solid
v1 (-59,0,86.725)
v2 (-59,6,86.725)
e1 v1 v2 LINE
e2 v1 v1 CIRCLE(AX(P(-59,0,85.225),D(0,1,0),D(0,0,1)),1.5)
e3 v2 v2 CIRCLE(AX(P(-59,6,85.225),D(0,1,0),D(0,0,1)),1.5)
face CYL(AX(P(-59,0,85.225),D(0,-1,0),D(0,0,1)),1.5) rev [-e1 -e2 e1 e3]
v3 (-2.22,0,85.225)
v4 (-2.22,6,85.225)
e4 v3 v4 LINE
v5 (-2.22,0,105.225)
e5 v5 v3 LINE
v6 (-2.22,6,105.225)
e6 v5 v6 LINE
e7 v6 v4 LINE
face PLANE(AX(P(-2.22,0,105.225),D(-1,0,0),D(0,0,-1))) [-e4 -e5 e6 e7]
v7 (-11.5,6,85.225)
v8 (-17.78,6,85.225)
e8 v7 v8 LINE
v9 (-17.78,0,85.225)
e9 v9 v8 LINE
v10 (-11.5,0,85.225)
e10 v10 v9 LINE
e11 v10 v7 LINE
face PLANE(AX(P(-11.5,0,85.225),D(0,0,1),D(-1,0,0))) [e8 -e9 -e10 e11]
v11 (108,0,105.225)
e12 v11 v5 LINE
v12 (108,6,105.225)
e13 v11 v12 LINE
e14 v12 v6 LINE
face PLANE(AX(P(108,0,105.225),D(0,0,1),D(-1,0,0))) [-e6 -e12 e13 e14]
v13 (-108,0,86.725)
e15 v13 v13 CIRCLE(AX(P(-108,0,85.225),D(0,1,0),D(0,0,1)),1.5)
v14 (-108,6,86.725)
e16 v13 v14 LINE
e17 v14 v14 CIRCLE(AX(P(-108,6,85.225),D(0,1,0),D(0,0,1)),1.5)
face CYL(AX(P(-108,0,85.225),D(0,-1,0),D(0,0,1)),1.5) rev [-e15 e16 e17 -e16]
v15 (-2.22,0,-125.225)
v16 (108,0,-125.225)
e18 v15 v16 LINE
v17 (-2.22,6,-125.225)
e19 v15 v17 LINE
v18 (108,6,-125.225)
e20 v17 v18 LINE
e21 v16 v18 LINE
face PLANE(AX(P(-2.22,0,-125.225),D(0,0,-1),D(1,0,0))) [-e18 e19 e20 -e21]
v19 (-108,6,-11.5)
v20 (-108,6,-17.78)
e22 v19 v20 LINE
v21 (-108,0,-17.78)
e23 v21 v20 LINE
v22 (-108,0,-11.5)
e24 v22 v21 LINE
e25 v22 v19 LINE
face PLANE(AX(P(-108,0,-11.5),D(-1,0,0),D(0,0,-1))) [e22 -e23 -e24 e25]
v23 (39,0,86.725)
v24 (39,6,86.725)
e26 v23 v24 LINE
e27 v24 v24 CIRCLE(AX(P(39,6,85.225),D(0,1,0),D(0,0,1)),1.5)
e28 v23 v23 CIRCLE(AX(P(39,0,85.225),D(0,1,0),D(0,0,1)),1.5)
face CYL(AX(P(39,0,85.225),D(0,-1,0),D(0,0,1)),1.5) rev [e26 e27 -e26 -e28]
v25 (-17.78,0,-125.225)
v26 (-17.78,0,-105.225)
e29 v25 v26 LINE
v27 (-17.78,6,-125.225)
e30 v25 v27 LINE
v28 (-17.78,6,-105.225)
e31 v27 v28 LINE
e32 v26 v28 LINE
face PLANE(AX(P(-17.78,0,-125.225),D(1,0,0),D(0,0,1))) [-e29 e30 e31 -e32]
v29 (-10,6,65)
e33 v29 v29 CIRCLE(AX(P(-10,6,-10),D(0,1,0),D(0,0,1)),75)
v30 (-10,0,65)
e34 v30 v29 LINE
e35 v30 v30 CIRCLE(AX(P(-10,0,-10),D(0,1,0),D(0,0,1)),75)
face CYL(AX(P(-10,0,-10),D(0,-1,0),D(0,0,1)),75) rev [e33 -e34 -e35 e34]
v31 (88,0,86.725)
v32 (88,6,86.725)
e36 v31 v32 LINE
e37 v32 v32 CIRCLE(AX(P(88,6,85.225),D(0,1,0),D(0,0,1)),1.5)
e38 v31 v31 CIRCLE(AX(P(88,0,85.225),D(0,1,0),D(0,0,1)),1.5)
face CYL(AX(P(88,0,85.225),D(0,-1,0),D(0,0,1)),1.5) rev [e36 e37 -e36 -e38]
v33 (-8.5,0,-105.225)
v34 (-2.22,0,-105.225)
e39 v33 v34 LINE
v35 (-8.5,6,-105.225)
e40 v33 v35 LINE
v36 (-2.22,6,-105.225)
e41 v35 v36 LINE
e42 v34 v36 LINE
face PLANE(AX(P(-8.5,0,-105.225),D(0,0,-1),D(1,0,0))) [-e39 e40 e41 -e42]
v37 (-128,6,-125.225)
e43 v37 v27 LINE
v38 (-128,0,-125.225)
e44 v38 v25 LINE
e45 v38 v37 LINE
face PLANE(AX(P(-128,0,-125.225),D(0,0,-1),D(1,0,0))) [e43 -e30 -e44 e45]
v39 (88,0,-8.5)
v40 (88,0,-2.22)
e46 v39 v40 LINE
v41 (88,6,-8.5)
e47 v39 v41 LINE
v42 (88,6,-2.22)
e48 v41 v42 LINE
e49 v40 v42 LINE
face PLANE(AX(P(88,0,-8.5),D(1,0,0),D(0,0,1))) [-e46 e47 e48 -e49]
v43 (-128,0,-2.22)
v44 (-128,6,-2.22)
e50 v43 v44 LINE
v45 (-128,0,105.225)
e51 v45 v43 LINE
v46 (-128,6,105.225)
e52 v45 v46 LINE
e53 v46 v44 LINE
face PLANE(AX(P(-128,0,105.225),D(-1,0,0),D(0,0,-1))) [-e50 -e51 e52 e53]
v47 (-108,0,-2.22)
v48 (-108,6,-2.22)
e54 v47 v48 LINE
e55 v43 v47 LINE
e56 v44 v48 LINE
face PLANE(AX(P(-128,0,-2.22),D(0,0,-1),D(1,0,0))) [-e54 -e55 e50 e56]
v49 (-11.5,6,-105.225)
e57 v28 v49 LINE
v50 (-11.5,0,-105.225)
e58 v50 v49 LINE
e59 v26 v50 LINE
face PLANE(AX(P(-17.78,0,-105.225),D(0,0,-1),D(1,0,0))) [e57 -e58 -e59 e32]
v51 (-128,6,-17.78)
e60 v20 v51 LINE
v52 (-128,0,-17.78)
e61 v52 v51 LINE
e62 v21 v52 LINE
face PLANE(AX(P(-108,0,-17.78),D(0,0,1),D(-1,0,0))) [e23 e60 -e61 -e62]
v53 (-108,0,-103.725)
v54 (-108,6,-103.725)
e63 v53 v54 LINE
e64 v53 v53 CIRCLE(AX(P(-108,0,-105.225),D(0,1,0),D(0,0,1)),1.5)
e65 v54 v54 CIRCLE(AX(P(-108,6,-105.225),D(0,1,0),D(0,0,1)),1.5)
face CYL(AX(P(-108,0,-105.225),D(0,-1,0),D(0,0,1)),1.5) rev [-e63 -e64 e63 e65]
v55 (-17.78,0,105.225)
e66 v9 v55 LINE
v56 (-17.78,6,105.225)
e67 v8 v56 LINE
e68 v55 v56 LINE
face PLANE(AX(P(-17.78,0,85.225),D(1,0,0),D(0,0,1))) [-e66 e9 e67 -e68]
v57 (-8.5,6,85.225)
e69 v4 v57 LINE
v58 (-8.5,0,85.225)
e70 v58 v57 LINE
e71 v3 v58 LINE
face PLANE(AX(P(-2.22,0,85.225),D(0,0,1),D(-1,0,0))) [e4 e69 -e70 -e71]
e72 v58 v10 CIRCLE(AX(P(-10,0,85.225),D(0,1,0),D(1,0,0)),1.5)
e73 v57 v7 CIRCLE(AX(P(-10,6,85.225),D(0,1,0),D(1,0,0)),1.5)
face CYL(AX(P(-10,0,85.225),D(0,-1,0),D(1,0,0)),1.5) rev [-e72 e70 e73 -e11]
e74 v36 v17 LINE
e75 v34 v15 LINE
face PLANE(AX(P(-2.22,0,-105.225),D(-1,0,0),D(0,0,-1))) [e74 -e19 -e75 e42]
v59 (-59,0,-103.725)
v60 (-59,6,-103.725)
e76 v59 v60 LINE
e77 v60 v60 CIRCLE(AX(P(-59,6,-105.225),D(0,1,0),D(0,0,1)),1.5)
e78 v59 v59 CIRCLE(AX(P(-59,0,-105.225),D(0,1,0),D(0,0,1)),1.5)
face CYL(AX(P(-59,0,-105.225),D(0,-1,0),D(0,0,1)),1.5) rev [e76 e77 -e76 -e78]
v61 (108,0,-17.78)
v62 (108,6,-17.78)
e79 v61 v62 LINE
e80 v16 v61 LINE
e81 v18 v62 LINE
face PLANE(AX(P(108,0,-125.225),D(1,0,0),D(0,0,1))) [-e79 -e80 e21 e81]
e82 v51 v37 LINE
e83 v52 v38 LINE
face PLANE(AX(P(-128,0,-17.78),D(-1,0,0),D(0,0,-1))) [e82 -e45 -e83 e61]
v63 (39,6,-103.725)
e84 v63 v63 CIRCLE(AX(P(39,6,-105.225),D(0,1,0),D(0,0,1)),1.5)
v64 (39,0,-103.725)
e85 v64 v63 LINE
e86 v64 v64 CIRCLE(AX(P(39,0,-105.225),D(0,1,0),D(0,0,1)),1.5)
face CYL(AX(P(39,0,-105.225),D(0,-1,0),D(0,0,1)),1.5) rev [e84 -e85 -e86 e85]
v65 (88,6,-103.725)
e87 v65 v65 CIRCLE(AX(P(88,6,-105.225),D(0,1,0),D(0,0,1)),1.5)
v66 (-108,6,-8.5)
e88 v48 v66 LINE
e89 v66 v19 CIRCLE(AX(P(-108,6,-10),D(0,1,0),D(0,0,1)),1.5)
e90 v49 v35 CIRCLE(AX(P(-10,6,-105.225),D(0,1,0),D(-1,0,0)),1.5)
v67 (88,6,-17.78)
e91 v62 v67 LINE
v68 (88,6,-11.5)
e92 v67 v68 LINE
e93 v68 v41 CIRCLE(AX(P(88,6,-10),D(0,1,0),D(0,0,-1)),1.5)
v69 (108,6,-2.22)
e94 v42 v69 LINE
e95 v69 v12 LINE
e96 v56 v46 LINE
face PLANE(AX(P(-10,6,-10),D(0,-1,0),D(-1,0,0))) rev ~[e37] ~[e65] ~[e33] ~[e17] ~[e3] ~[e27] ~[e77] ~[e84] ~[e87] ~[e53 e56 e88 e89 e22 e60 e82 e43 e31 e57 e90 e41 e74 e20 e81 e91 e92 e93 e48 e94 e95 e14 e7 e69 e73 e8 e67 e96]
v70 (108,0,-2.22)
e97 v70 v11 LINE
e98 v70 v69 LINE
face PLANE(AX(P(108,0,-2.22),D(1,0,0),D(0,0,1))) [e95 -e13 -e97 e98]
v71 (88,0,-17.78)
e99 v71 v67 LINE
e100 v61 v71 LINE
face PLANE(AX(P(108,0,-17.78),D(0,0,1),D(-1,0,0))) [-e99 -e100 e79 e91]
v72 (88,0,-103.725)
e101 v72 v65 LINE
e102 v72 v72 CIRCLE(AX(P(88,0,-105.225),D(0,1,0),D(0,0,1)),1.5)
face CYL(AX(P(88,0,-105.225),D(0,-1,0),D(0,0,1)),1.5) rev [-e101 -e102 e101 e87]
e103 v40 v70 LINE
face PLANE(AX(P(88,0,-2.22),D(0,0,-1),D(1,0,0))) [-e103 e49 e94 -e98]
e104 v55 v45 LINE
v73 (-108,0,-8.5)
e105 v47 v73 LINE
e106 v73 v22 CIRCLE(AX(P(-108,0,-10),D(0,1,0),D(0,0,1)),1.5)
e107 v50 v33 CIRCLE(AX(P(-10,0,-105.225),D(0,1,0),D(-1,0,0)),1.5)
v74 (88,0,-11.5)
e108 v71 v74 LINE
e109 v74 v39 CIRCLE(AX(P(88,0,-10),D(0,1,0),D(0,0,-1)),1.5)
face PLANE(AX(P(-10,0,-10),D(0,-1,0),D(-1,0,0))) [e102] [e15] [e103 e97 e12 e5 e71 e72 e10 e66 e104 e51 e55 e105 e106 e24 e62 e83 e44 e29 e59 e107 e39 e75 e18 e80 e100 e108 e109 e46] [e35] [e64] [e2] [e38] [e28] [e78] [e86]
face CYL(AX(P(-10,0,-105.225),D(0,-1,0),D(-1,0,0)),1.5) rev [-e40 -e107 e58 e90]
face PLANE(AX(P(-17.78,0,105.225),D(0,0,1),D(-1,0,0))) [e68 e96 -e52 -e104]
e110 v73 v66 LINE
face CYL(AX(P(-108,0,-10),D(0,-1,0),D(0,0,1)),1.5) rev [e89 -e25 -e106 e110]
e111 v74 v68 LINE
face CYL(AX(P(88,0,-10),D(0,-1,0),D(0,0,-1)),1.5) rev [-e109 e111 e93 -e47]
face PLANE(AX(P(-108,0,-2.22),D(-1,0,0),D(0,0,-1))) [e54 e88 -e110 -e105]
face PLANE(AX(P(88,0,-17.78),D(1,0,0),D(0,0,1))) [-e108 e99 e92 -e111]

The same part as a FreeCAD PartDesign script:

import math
import FreeCAD as App
import Part
import Sketcher
from FreeCAD import Vector

doc = App.newDocument("Part")
params = doc.addObject("Spreadsheet::Sheet", "Params")
for row, (alias, value) in enumerate([
    ("sketch1_diameter", "3 mm"),
    ("sketch1_diameter2", "150 mm"),
    ("sketch1_width", "20 mm"),
    ("sketch1_width2", "110.22 mm"),
    ("pad1_length", "6 mm"),
], start=1):
    params.set(f"A{row}", alias)
    params.set(f"B{row}", "=" + value)
    params.setAlias(f"B{row}", alias)

body = doc.addObject("PartDesign::Body", "Body")

# Sketch on XZ plane
sketch1 = doc.addObject("Sketcher::SketchObject", "Sketch")
body.addObject(sketch1)
sketch1.AttachmentSupport = (doc.XZ_Plane, [""])
sketch1.MapMode = "FlatFace"
sketch1.addGeometry(Part.LineSegment(Vector(-17.8, -125.2, 0), Vector(-128, -125.2, 0)), False)
sketch1.addGeometry(Part.LineSegment(Vector(-128, -125.2, 0), Vector(-128, -17.8, 0)), False)
sketch1.addGeometry(Part.LineSegment(Vector(-128, -17.8, 0), Vector(-108, -17.8, 0)), False)
sketch1.addGeometry(Part.LineSegment(Vector(-108, -17.8, 0), Vector(-108, -11.5, 0)), False)
sketch1.addGeometry(Part.ArcOfCircle(Part.Circle(Vector(-108, -10, 0), Vector(0, 0, 1), 1.5), math.radians(-90), math.radians(90)), False)
sketch1.addGeometry(Part.LineSegment(Vector(-108, -8.5, 0), Vector(-108, -2.2, 0)), False)
sketch1.addGeometry(Part.LineSegment(Vector(-108, -2.2, 0), Vector(-128, -2.2, 0)), False)
sketch1.addGeometry(Part.LineSegment(Vector(-128, -2.2, 0), Vector(-128, 105.2, 0)), False)
sketch1.addGeometry(Part.LineSegment(Vector(-128, 105.2, 0), Vector(-17.8, 105.2, 0)), False)
sketch1.addGeometry(Part.LineSegment(Vector(-17.8, 105.2, 0), Vector(-17.8, 85.2, 0)), False)
sketch1.addGeometry(Part.LineSegment(Vector(-17.8, 85.2, 0), Vector(-11.5, 85.2, 0)), False)
sketch1.addGeometry(Part.ArcOfCircle(Part.Circle(Vector(-10, 85.2, 0), Vector(0, 0, 1), 1.5), math.radians(180), math.radians(360)), False)
sketch1.addGeometry(Part.LineSegment(Vector(-8.5, 85.2, 0), Vector(-2.2, 85.2, 0)), False)
sketch1.addGeometry(Part.LineSegment(Vector(-2.2, 85.2, 0), Vector(-2.2, 105.2, 0)), False)
sketch1.addGeometry(Part.LineSegment(Vector(-2.2, 105.2, 0), Vector(108, 105.2, 0)), False)
sketch1.addGeometry(Part.LineSegment(Vector(108, 105.2, 0), Vector(108, -2.2, 0)), False)
sketch1.addGeometry(Part.LineSegment(Vector(108, -2.2, 0), Vector(88, -2.2, 0)), False)
sketch1.addGeometry(Part.LineSegment(Vector(88, -2.2, 0), Vector(88, -8.5, 0)), False)
sketch1.addGeometry(Part.ArcOfCircle(Part.Circle(Vector(88, -10, 0), Vector(0, 0, 1), 1.5), math.radians(90), math.radians(270)), False)
sketch1.addGeometry(Part.LineSegment(Vector(88, -11.5, 0), Vector(88, -17.8, 0)), False)
sketch1.addGeometry(Part.LineSegment(Vector(88, -17.8, 0), Vector(108, -17.8, 0)), False)
sketch1.addGeometry(Part.LineSegment(Vector(108, -17.8, 0), Vector(108, -125.2, 0)), False)
sketch1.addGeometry(Part.LineSegment(Vector(108, -125.2, 0), Vector(-2.2, -125.2, 0)), False)
sketch1.addGeometry(Part.LineSegment(Vector(-2.2, -125.2, 0), Vector(-2.2, -105.2, 0)), False)
sketch1.addGeometry(Part.LineSegment(Vector(-2.2, -105.2, 0), Vector(-8.5, -105.2, 0)), False)
sketch1.addGeometry(Part.ArcOfCircle(Part.Circle(Vector(-10, -105.2, 0), Vector(0, 0, 1), 1.5), math.radians(0), math.radians(180)), False)
sketch1.addGeometry(Part.LineSegment(Vector(-11.5, -105.2, 0), Vector(-17.8, -105.2, 0)), False)
sketch1.addGeometry(Part.LineSegment(Vector(-17.8, -105.2, 0), Vector(-17.8, -125.2, 0)), False)
sketch1.addGeometry(Part.Circle(Vector(88, 85.2, 0), Vector(0, 0, 1), 1.5), False)
sketch1.addGeometry(Part.Circle(Vector(39, 85.2, 0), Vector(0, 0, 1), 1.5), False)
sketch1.addGeometry(Part.Circle(Vector(-59, 85.2, 0), Vector(0, 0, 1), 1.5), False)
sketch1.addGeometry(Part.Circle(Vector(-108, 85.2, 0), Vector(0, 0, 1), 1.5), False)
sketch1.addGeometry(Part.Circle(Vector(88, -105.2, 0), Vector(0, 0, 1), 1.5), False)
sketch1.addGeometry(Part.Circle(Vector(39, -105.2, 0), Vector(0, 0, 1), 1.5), False)
sketch1.addGeometry(Part.Circle(Vector(-10, -10, 0), Vector(0, 0, 1), 75), False)
sketch1.addGeometry(Part.Circle(Vector(-59, -105.2, 0), Vector(0, 0, 1), 1.5), False)
sketch1.addGeometry(Part.Circle(Vector(-108, -105.2, 0), Vector(0, 0, 1), 1.5), False)
sketch1.addConstraint(Sketcher.Constraint("Coincident", 0, 2, 1, 1))
sketch1.addConstraint(Sketcher.Constraint("Coincident", 1, 2, 2, 1))
sketch1.addConstraint(Sketcher.Constraint("Coincident", 2, 2, 3, 1))
sketch1.addConstraint(Sketcher.Constraint("Coincident", 3, 2, 4, 1))
sketch1.addConstraint(Sketcher.Constraint("Coincident", 4, 2, 5, 1))
sketch1.addConstraint(Sketcher.Constraint("Coincident", 5, 2, 6, 1))
sketch1.addConstraint(Sketcher.Constraint("Coincident", 6, 2, 7, 1))
sketch1.addConstraint(Sketcher.Constraint("Coincident", 7, 2, 8, 1))
sketch1.addConstraint(Sketcher.Constraint("Coincident", 8, 2, 9, 1))
sketch1.addConstraint(Sketcher.Constraint("Coincident", 9, 2, 10, 1))
sketch1.addConstraint(Sketcher.Constraint("Coincident", 10, 2, 11, 1))
sketch1.addConstraint(Sketcher.Constraint("Coincident", 11, 2, 12, 1))
sketch1.addConstraint(Sketcher.Constraint("Coincident", 12, 2, 13, 1))
sketch1.addConstraint(Sketcher.Constraint("Coincident", 13, 2, 14, 1))
sketch1.addConstraint(Sketcher.Constraint("Coincident", 14, 2, 15, 1))
sketch1.addConstraint(Sketcher.Constraint("Coincident", 15, 2, 16, 1))
sketch1.addConstraint(Sketcher.Constraint("Coincident", 16, 2, 17, 1))
sketch1.addConstraint(Sketcher.Constraint("Coincident", 17, 2, 18, 1))
sketch1.addConstraint(Sketcher.Constraint("Coincident", 18, 2, 19, 1))
sketch1.addConstraint(Sketcher.Constraint("Coincident", 19, 2, 20, 1))
sketch1.addConstraint(Sketcher.Constraint("Coincident", 20, 2, 21, 1))
sketch1.addConstraint(Sketcher.Constraint("Coincident", 21, 2, 22, 1))
sketch1.addConstraint(Sketcher.Constraint("Coincident", 22, 2, 23, 1))
sketch1.addConstraint(Sketcher.Constraint("Coincident", 23, 2, 24, 1))
sketch1.addConstraint(Sketcher.Constraint("Coincident", 24, 2, 25, 1))
sketch1.addConstraint(Sketcher.Constraint("Coincident", 25, 2, 26, 1))
sketch1.addConstraint(Sketcher.Constraint("Coincident", 26, 2, 27, 1))
sketch1.addConstraint(Sketcher.Constraint("Coincident", 27, 2, 0, 1))
sketch1.addConstraint(Sketcher.Constraint("Horizontal", 0))
sketch1.addConstraint(Sketcher.Constraint("Vertical", 1))
sketch1.addConstraint(Sketcher.Constraint("Horizontal", 2))
sketch1.addConstraint(Sketcher.Constraint("Vertical", 3))
sketch1.addConstraint(Sketcher.Constraint("Vertical", 5))
sketch1.addConstraint(Sketcher.Constraint("Horizontal", 6))
sketch1.addConstraint(Sketcher.Constraint("Vertical", 7))
sketch1.addConstraint(Sketcher.Constraint("Horizontal", 8))
sketch1.addConstraint(Sketcher.Constraint("Vertical", 9))
sketch1.addConstraint(Sketcher.Constraint("Horizontal", 10))
sketch1.addConstraint(Sketcher.Constraint("Horizontal", 12))
sketch1.addConstraint(Sketcher.Constraint("Vertical", 13))
sketch1.addConstraint(Sketcher.Constraint("Horizontal", 14))
sketch1.addConstraint(Sketcher.Constraint("Vertical", 15))
sketch1.addConstraint(Sketcher.Constraint("Horizontal", 16))
sketch1.addConstraint(Sketcher.Constraint("Vertical", 17))
sketch1.addConstraint(Sketcher.Constraint("Vertical", 19))
sketch1.addConstraint(Sketcher.Constraint("Horizontal", 20))
sketch1.addConstraint(Sketcher.Constraint("Vertical", 21))
sketch1.addConstraint(Sketcher.Constraint("Horizontal", 22))
sketch1.addConstraint(Sketcher.Constraint("Vertical", 23))
sketch1.addConstraint(Sketcher.Constraint("Horizontal", 24))
sketch1.addConstraint(Sketcher.Constraint("Horizontal", 26))
sketch1.addConstraint(Sketcher.Constraint("Vertical", 27))
sketch1.addConstraint(Sketcher.Constraint("Equal", 4, 11))
sketch1.addConstraint(Sketcher.Constraint("Equal", 11, 18))
sketch1.addConstraint(Sketcher.Constraint("Equal", 18, 25))
sketch1.addConstraint(Sketcher.Constraint("Equal", 25, 28))
sketch1.addConstraint(Sketcher.Constraint("Equal", 28, 29))
sketch1.addConstraint(Sketcher.Constraint("Equal", 29, 30))
sketch1.addConstraint(Sketcher.Constraint("Equal", 30, 31))
sketch1.addConstraint(Sketcher.Constraint("Equal", 31, 32))
sketch1.addConstraint(Sketcher.Constraint("Equal", 32, 33))
sketch1.addConstraint(Sketcher.Constraint("Equal", 33, 35))
sketch1.addConstraint(Sketcher.Constraint("Equal", 35, 36))
sketch1.addConstraint(Sketcher.Constraint("Symmetric", 5, 2, 15, 2, -2))
sketch1.addConstraint(Sketcher.Constraint("Symmetric", 2, 2, 20, 2, -2))
sketch1.addConstraint(Sketcher.Constraint("Symmetric", 13, 2, 23, 2, -1))
sketch1.addConstraint(Sketcher.Constraint("Symmetric", 8, 2, 26, 2, -1))
sketch1.addConstraint(Sketcher.Constraint("Horizontal", 4, 3, 18, 3))
sketch1.addConstraint(Sketcher.Constraint("Horizontal", 11, 3, 28, 3))
sketch1.addConstraint(Sketcher.Constraint("Horizontal", 28, 3, 29, 3))
sketch1.addConstraint(Sketcher.Constraint("Horizontal", 29, 3, 30, 3))
sketch1.addConstraint(Sketcher.Constraint("Horizontal", 30, 3, 31, 3))
sketch1.addConstraint(Sketcher.Constraint("Horizontal", 25, 3, 32, 3))
sketch1.addConstraint(Sketcher.Constraint("Horizontal", 32, 3, 33, 3))
sketch1.addConstraint(Sketcher.Constraint("Horizontal", 18, 3, 34, 3))
sketch1.addConstraint(Sketcher.Constraint("Horizontal", 33, 3, 35, 3))
sketch1.addConstraint(Sketcher.Constraint("Horizontal", 35, 3, 36, 3))
sketch1.addConstraint(Sketcher.Constraint("Horizontal", 31, 3, 9, 2))
sketch1.addConstraint(Sketcher.Constraint("Horizontal", 10, 2, 11, 2))
sketch1.addConstraint(Sketcher.Constraint("Horizontal", 8, 2, 13, 2))
sketch1.addConstraint(Sketcher.Constraint("Horizontal", 0, 2, 21, 2))
sketch1.addConstraint(Sketcher.Constraint("Horizontal", 36, 3, 23, 2))
sketch1.addConstraint(Sketcher.Constraint("Vertical", 11, 3, 25, 3))
sketch1.addConstraint(Sketcher.Constraint("Vertical", 18, 3, 28, 3))
sketch1.addConstraint(Sketcher.Constraint("Vertical", 4, 3, 31, 3))
sketch1.addConstraint(Sketcher.Constraint("Vertical", 28, 3, 32, 3))
sketch1.addConstraint(Sketcher.Constraint("Vertical", 29, 3, 33, 3))
sketch1.addConstraint(Sketcher.Constraint("Vertical", 25, 3, 34, 3))
sketch1.addConstraint(Sketcher.Constraint("Vertical", 30, 3, 35, 3))
sketch1.addConstraint(Sketcher.Constraint("Vertical", 31, 3, 36, 3))
sketch1.addConstraint(Sketcher.Constraint("Vertical", 36, 3, 2, 2))
sketch1.addConstraint(Sketcher.Constraint("Vertical", 3, 2, 4, 2))
sketch1.addConstraint(Sketcher.Constraint("Vertical", 1, 2, 6, 2))
sketch1.addConstraint(Sketcher.Constraint("Vertical", 32, 3, 16, 2))
sketch1.addConstraint(Sketcher.Constraint("Vertical", 17, 2, 18, 2))
sketch1.addConstraint(Sketcher.Constraint("Equal", 10, 12))
sketch1.addConstraint(Sketcher.Constraint("Equal", 8, 14))
sketch1.addConstraint(Sketcher.Constraint("Equal", 6, 16))
sketch1.addConstraint(Sketcher.Constraint("Equal", 26, 3))
sketch1.addConstraint(Sketcher.Constraint("Equal", 3, 5))
sketch1.addConstraint(Sketcher.Constraint("Equal", 1, 7))
sketch1.addConstraint(Sketcher.Constraint("Equal", 20, 9))
sketch1.addConstraint(Sketcher.Constraint("Equal", 13, 23))
sketch1.addConstraint(Sketcher.Constraint("Diameter", 28, 3.0))
sketch1.addConstraint(Sketcher.Constraint("Diameter", 34, 150.0))
sketch1.addConstraint(Sketcher.Constraint("DistanceX", 2, 1, 2, 2, 20.0))
sketch1.addConstraint(Sketcher.Constraint("DistanceX", 4, 3, -1, 1, 108.0))
sketch1.addConstraint(Sketcher.Constraint("DistanceX", -1, 1, 29, 3, 39.0))
sketch1.addConstraint(Sketcher.Constraint("DistanceX", 30, 3, -1, 1, 59.0))
sketch1.addConstraint(Sketcher.Constraint("DistanceX", 0, 2, 0, 1, 110.22))
sketch1.addConstraint(Sketcher.Constraint("DistanceY", 1, 1, 1, 2, 107.445))
sketch1.setExpression("Constraints[103]", "Params.sketch1_diameter")
sketch1.setExpression("Constraints[104]", "Params.sketch1_diameter2")
sketch1.setExpression("Constraints[105]", "Params.sketch1_width")
sketch1.setExpression("Constraints[109]", "Params.sketch1_width2")
pad1 = doc.addObject("PartDesign::Pad", "Pad")
body.addObject(pad1)
pad1.Profile = sketch1
pad1.setExpression("Length", "Params.pad1_length")
pad1.Reversed = True

doc.recompute()
